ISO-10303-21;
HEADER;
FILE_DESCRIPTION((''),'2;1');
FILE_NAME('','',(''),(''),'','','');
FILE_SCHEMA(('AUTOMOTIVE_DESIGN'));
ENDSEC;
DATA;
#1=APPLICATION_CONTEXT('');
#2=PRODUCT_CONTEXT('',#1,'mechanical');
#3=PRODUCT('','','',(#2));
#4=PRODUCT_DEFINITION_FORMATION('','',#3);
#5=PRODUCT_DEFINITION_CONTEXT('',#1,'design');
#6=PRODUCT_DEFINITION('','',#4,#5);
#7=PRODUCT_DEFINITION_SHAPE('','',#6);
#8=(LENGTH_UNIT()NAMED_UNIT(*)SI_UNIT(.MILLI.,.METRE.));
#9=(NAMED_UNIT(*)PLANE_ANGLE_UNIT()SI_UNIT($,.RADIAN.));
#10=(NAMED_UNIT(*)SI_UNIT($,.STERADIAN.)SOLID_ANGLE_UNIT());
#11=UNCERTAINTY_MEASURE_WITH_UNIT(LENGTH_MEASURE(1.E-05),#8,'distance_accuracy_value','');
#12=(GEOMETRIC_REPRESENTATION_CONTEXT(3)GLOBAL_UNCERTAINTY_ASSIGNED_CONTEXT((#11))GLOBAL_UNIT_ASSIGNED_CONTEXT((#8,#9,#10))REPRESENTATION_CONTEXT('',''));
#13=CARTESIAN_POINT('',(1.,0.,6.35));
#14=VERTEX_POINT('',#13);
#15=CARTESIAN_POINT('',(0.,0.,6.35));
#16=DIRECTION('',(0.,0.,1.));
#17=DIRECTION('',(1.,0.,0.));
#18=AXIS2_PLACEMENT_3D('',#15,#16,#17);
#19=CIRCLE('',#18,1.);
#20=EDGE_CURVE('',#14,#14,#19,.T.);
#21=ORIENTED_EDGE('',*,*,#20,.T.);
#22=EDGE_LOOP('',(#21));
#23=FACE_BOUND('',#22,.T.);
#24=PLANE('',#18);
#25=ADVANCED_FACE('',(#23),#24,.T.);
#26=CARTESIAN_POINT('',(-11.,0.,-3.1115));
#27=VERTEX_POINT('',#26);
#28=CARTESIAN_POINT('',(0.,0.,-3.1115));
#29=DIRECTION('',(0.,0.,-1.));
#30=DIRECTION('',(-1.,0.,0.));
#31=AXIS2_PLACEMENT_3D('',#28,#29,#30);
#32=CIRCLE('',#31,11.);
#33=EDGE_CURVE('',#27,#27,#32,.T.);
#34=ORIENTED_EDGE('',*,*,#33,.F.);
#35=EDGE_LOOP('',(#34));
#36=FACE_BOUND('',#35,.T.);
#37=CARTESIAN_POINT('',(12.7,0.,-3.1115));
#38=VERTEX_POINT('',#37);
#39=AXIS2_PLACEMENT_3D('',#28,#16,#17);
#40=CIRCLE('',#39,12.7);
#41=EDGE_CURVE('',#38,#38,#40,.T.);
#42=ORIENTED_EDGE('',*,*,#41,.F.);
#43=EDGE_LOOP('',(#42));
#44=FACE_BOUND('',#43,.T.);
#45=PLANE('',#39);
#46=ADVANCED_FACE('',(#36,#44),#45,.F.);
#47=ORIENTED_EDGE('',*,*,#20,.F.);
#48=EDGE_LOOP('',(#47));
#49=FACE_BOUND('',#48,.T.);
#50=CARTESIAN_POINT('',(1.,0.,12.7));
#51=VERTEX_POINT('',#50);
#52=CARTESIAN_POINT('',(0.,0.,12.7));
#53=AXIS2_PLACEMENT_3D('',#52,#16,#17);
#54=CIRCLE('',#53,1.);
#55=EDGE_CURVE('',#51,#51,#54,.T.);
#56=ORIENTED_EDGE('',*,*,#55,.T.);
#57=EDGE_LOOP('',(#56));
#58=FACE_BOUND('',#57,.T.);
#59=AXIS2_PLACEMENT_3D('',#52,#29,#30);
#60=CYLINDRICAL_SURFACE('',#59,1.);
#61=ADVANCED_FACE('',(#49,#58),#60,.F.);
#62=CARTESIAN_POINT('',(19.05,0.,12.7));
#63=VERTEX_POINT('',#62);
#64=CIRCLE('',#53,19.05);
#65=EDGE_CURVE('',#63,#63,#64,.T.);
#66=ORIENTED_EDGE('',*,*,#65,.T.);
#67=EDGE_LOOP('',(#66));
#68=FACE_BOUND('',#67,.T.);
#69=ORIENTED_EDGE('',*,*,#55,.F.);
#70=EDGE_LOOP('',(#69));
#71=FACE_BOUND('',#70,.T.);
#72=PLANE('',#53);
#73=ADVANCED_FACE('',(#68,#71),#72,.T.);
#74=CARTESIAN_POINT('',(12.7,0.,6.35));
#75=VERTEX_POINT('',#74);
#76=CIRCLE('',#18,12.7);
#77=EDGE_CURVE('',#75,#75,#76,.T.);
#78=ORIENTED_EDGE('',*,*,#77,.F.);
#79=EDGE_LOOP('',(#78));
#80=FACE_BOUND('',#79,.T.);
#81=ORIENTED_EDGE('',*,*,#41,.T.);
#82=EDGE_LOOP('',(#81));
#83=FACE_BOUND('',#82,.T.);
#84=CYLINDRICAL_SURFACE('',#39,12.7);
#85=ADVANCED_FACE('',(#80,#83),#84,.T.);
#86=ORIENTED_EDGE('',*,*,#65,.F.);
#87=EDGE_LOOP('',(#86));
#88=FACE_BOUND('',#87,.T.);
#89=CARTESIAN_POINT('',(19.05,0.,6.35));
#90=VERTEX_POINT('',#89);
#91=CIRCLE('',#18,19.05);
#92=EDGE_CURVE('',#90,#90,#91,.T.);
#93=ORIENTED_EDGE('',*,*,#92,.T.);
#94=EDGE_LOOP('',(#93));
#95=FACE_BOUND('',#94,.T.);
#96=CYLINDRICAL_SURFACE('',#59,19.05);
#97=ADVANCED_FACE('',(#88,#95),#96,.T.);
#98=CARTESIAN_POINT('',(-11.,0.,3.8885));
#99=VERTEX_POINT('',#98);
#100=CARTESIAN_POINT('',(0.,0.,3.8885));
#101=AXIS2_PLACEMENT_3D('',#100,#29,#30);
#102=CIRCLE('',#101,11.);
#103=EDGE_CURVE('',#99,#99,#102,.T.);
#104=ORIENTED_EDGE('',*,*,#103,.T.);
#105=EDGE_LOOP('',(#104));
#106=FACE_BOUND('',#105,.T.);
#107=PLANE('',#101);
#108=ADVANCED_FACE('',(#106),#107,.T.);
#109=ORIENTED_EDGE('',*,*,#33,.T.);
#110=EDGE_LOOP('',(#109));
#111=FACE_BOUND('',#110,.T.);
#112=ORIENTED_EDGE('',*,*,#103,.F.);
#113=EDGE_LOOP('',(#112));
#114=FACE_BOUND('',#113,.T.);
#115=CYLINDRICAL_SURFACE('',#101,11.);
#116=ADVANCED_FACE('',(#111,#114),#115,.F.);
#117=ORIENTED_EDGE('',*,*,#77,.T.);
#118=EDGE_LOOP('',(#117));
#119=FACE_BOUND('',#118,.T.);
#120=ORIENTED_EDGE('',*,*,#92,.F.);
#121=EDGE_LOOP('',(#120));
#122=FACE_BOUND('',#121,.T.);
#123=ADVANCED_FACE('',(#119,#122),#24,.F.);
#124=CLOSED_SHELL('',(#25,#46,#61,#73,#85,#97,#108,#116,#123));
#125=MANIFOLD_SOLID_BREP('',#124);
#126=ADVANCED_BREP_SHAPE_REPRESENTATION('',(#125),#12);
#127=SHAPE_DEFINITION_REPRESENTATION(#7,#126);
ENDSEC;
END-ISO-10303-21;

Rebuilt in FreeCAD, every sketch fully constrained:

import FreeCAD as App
import Part
import Sketcher
Q = App.Units.Quantity

doc = App.newDocument("Part")
params = doc.addObject("Spreadsheet::Sheet", "Params")
for row, (alias, value) in enumerate([
    ("sketch1_diameter", "25.4 mm"),
    ("pad1_length", "6.35 mm"),
    ("pad1_length2", "3.1115 mm"),
    ("sketch2_diameter", "2 mm"),
    ("sketch2_diameter2", "38.1 mm"),
    ("pad2_length", "6.35 mm"),
    ("sketch3_diameter", "22 mm"),
    ("pocket1_length", "7 mm"),
], start=1):
    params.set(f"A{row}", alias)
    params.set(f"B{row}", "=" + value)
    params.setAlias(f"B{row}", alias)

body = doc.addObject("PartDesign::Body", "Body")

# Sketch on XY plane
sketch1 = doc.addObject("Sketcher::SketchObject", "Sketch")
body.addObject(sketch1)
sketch1.AttachmentSupport = (doc.XY_Plane, [""])
sketch1.MapMode = "FlatFace"
sketch1.addGeometry(Part.Circle(App.Vector(0, 0, 0), App.Vector(0, 0, 1), 13), False)
sketch1.addConstraint([
    Sketcher.Constraint("Coincident", 0, 3, -1, 1),
    Sketcher.Constraint("Diameter", 0, Q("25.4 mm")),
])
sketch1.setExpression("Constraints[1]", "Params.sketch1_diameter")
pad1 = doc.addObject("PartDesign::Pad", "Pad")
body.addObject(pad1)
pad1.Profile = sketch1
pad1.Type = "TwoLengths"
pad1.setExpression("Length", "Params.pad1_length")
pad1.setExpression("Length2", "Params.pad1_length2")

# Sketch on XY plane
sketch2 = doc.addObject("Sketcher::SketchObject", "Sketch001")
body.addObject(sketch2)
sketch2.AttachmentSupport = (doc.XY_Plane, [""])
sketch2.MapMode = "FlatFace"
sketch2.AttachmentOffset = App.Placement(App.Vector(0, 0, 6.35), App.Rotation())
sketch2.addGeometry([
    Part.Circle(App.Vector(0, 0, 0), App.Vector(0, 0, 1), 19.1),
    Part.Circle(App.Vector(0, 0, 0), App.Vector(0, 0, 1), 1),
], False)
sketch2.addConstraint([
    Sketcher.Constraint("Coincident", 0, 3, -1, 1),
    Sketcher.Constraint("Coincident", 1, 3, -1, 1),
    Sketcher.Constraint("Diameter", 1, Q("2 mm")),
    Sketcher.Constraint("Diameter", 0, Q("38.1 mm")),
])
sketch2.setExpression("Constraints[2]", "Params.sketch2_diameter")
sketch2.setExpression("Constraints[3]", "Params.sketch2_diameter2")
pad2 = doc.addObject("PartDesign::Pad", "Pad001")
body.addObject(pad2)
pad2.Profile = sketch2
pad2.setExpression("Length", "Params.pad2_length")

# Sketch on XY plane
sketch3 = doc.addObject("Sketcher::SketchObject", "Sketch002")
body.addObject(sketch3)
sketch3.AttachmentSupport = (doc.XY_Plane, [""])
sketch3.MapMode = "FlatFace"
sketch3.AttachmentOffset = App.Placement(App.Vector(0, 0, -3.1115), App.Rotation())
sketch3.addGeometry(Part.Circle(App.Vector(0, 0, 0), App.Vector(0, 0, 1), 11), False)
sketch3.addConstraint([
    Sketcher.Constraint("Coincident", 0, 3, -1, 1),
    Sketcher.Constraint("Diameter", 0, Q("22 mm")),
])
sketch3.setExpression("Constraints[1]", "Params.sketch3_diameter")
pocket1 = doc.addObject("PartDesign::Pocket", "Pocket")
body.addObject(pocket1)
pocket1.Profile = sketch3
pocket1.setExpression("Length", "Params.pocket1_length")
pocket1.Reversed = True

doc.recompute()
